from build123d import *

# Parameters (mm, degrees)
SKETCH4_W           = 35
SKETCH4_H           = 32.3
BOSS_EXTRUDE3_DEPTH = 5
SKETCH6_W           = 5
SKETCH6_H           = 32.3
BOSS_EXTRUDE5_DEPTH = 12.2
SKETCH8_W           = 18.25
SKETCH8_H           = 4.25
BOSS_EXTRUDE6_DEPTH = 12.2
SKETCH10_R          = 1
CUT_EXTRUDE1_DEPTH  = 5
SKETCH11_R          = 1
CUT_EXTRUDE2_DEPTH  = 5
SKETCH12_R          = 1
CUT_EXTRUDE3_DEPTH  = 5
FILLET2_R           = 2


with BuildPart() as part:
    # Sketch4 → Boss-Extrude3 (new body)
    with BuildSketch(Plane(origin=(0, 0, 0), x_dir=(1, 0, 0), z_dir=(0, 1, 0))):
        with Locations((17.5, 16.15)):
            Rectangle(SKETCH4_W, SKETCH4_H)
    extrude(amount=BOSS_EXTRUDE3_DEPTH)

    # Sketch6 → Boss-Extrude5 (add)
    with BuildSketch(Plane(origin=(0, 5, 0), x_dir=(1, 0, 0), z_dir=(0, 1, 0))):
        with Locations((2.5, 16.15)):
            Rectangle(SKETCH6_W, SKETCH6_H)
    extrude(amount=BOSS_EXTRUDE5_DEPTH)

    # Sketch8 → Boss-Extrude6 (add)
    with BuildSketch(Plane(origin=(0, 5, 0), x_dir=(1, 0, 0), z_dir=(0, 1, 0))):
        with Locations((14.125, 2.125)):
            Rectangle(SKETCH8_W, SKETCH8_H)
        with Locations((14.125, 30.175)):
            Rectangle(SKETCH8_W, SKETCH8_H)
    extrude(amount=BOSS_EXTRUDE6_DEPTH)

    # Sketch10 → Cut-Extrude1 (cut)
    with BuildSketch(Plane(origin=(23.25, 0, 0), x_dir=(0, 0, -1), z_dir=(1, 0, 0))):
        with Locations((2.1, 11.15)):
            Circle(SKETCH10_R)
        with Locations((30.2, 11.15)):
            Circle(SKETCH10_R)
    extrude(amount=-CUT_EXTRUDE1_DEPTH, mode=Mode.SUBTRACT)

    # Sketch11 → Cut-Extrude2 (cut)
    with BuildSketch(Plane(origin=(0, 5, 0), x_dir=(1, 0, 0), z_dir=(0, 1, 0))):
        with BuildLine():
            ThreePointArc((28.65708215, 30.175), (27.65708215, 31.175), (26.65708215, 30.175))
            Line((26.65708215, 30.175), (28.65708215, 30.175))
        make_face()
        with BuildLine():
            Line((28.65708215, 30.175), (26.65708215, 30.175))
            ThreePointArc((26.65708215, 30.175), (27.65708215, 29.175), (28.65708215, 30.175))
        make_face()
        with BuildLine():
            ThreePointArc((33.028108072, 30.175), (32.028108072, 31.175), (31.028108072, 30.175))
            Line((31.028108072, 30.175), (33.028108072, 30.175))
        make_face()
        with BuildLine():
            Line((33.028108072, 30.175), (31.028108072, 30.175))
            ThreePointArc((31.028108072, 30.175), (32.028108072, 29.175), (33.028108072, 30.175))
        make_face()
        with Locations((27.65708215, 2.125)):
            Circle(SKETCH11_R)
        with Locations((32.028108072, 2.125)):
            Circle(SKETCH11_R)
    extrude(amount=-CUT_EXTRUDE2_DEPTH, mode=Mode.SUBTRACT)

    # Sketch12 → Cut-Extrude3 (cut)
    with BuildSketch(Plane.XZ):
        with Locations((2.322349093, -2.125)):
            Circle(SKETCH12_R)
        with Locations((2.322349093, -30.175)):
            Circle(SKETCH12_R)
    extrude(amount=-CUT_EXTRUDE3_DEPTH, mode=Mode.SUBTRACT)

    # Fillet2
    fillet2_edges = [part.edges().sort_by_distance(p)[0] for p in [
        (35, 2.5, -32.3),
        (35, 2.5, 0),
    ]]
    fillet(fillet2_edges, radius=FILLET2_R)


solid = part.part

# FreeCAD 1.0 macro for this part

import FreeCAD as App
import Part
import Sketcher
Q = App.Units.Quantity


def edges_at(feature, points):
    """Names of the edges that pass closest to the given points."""
    edges = feature.Shape.Edges
    near = lambda p: min(range(len(edges)), key=lambda i: edges[i].distToShape(Part.Vertex(*p))[0])
    return sorted({f"Edge{near(p) + 1}" for p in points})


def add_polygon(sketch, points):
    """Adds a closed chain of lines whose ends are joined by coincident constraints."""
    first, n = sketch.GeometryCount, len(points)
    for a, b in zip(points, points[1:] + points[:1]):
        sketch.addGeometry(Part.LineSegment(App.Vector(*a, 0), App.Vector(*b, 0)), False)
    for i in range(n):
        sketch.addConstraint(Sketcher.Constraint("Coincident", first + i, 2, first + (i + 1) % n, 1))

doc = App.newDocument("Part")
body = doc.addObject("PartDesign::Body", "Body")

# Sketch on XZ plane
sketch1 = body.newObject("Sketcher::SketchObject", "Sketch")
sketch1.AttachmentSupport = (doc.getObject("XZ_Plane"), [""])
sketch1.MapMode = "FlatFace"
add_polygon(sketch1, [(0, -32), (0, 0), (35, 0), (35, -32)])  # lines 0-3
sketch1.addConstraint([
    Sketcher.Constraint("Vertical", 0),
    Sketcher.Constraint("Horizontal", 1),
    Sketcher.Constraint("Vertical", 2),
    Sketcher.Constraint("Horizontal", 3),
    Sketcher.Constraint("Coincident", 0, 2, -1, 1),
    Sketcher.Constraint("DistanceX", 1, 1, 1, 2, Q("35 mm")),
    Sketcher.Constraint("DistanceY", 0, 1, 0, 2, Q("32.3 mm")),
])
pad1 = body.newObject("PartDesign::Pad", "Pad")
pad1.Profile = sketch1
pad1.Length = 5
pad1.Reversed = True

# Sketch on XZ plane
sketch2 = body.newObject("Sketcher::SketchObject", "Sketch001")
sketch2.AttachmentSupport = (doc.getObject("XZ_Plane"), [""])
sketch2.MapMode = "FlatFace"
sketch2.AttachmentOffset = App.Placement(App.Vector(0, 0, -5), App.Rotation())
add_polygon(sketch2, [(0, -32), (0, 0), (5, 0), (5, -32)])  # lines 0-3
sketch2.addConstraint([
    Sketcher.Constraint("Vertical", 0),
    Sketcher.Constraint("Horizontal", 1),
    Sketcher.Constraint("Vertical", 2),
    Sketcher.Constraint("Horizontal", 3),
    Sketcher.Constraint("Coincident", 0, 2, -1, 1),
    Sketcher.Constraint("DistanceX", 1, 1, 1, 2, Q("5 mm")),
    Sketcher.Constraint("DistanceY", 0, 1, 0, 2, Q("32.3 mm")),
])
pad2 = body.newObject("PartDesign::Pad", "Pad001")
pad2.Profile = sketch2
pad2.Length = 12.2
pad2.Reversed = True

# Sketch on XZ plane
sketch3 = body.newObject("Sketcher::SketchObject", "Sketch002")
sketch3.AttachmentSupport = (doc.getObject("XZ_Plane"), [""])
sketch3.MapMode = "FlatFace"
sketch3.AttachmentOffset = App.Placement(App.Vector(0, 0, -5), App.Rotation())
add_polygon(sketch3, [(5, -4.2), (5, 0), (23.2, 0), (23.2, -4.2)])  # lines 0-3
add_polygon(sketch3, [(5, -32.3), (5, -28.1), (23.2, -28.1), (23.2, -32.3)])  # lines 4-7
sketch3.addConstraint([
    Sketcher.Constraint("Vertical", 0),
    Sketcher.Constraint("Horizontal", 1),
    Sketcher.Constraint("Vertical", 2),
    Sketcher.Constraint("Horizontal", 3),
    Sketcher.Constraint("Vertical", 4),
    Sketcher.Constraint("Horizontal", 5),
    Sketcher.Constraint("Vertical", 6),
    Sketcher.Constraint("Horizontal", 7),
    Sketcher.Constraint("PointOnObject", 0, 2, -1),
    Sketcher.Constraint("Vertical", 3, 2, 4, 2),
    Sketcher.Constraint("Vertical", 2, 2, 5, 2),
    Sketcher.Constraint("Equal", 2, 4),
    Sketcher.Constraint("DistanceX", -1, 1, 0, 2, Q("5 mm")),
    Sketcher.Constraint("DistanceX", 1, 1, 1, 2, Q("18.25 mm")),
    Sketcher.Constraint("DistanceY", 0, 1, 0, 2, Q("4.25 mm")),
    Sketcher.Constraint("DistanceY", 6, 2, -1, 1, Q("32.3 mm")),
])
pad3 = body.newObject("PartDesign::Pad", "Pad002")
pad3.Profile = sketch3
pad3.Length = 12.2
pad3.Reversed = True

# Sketch on YZ plane
sketch4 = body.newObject("Sketcher::SketchObject", "Sketch003")
sketch4.AttachmentSupport = (doc.getObject("YZ_Plane"), [""])
sketch4.MapMode = "FlatFace"
sketch4.AttachmentOffset = App.Placement(App.Vector(0, 0, 23.25), App.Rotation())
sketch4.addGeometry([
    Part.Circle(App.Vector(11.2, -2.1, 0), App.Vector(0, 0, 1), 1),
    Part.Circle(App.Vector(11.2, -30.2, 0), App.Vector(0, 0, 1), 1),
], False)
sketch4.addConstraint([
    Sketcher.Constraint("Equal", 0, 1),
    Sketcher.Constraint("Vertical", 0, 3, 1, 3),
    Sketcher.Constraint("Diameter", 0, Q("2 mm")),
    Sketcher.Constraint("DistanceY", 0, 3, -1, 1, Q("2.1 mm")),
    Sketcher.Constraint("DistanceY", 1, 3, -1, 1, Q("30.2 mm")),
    Sketcher.Constraint("DistanceX", -1, 1, 0, 3, Q("11.15 mm")),
])
pocket1 = body.newObject("PartDesign::Pocket", "Pocket")
pocket1.Profile = sketch4
pocket1.Length = 5

# Sketch on XZ plane
sketch5 = body.newObject("Sketcher::SketchObject", "Sketch004")
sketch5.AttachmentSupport = (doc.getObject("XZ_Plane"), [""])
sketch5.MapMode = "FlatFace"
sketch5.AttachmentOffset = App.Placement(App.Vector(0, 0, -5), App.Rotation())
sketch5.addGeometry([
    Part.Circle(App.Vector(27.7, -30.2, 0), App.Vector(0, 0, 1), 1),
    Part.Circle(App.Vector(32, -30.2, 0), App.Vector(0, 0, 1), 1),
    Part.Circle(App.Vector(27.7, -2.1, 0), App.Vector(0, 0, 1), 1),
    Part.Circle(App.Vector(32, -2.1, 0), App.Vector(0, 0, 1), 1),
], False)
sketch5.addConstraint([
    Sketcher.Constraint("Equal", 0, 1),
    Sketcher.Constraint("Equal", 1, 2),
    Sketcher.Constraint("Equal", 2, 3),
    Sketcher.Constraint("Horizontal", 0, 3, 1, 3),
    Sketcher.Constraint("Horizontal", 2, 3, 3, 3),
    Sketcher.Constraint("Vertical", 0, 3, 2, 3),
    Sketcher.Constraint("Vertical", 1, 3, 3, 3),
    Sketcher.Constraint("Diameter", 0, Q("2 mm")),
    Sketcher.Constraint("DistanceY", 0, 3, 2, 3, Q("28.05 mm")),
    Sketcher.Constraint("DistanceY", 0, 3, -1, 1, Q("30.175 mm")),
    Sketcher.Constraint("DistanceX", -1, 1, 1, 3, Q("32.028108 mm")),
    Sketcher.Constraint("DistanceX", -1, 1, 0, 3, Q("27.657082 mm")),
])
pocket2 = body.newObject("PartDesign::Pocket", "Pocket001")
pocket2.Profile = sketch5
pocket2.Length = 5
pocket2.Reversed = True

# Sketch on XZ plane
sketch6 = body.newObject("Sketcher::SketchObject", "Sketch005")
sketch6.AttachmentSupport = (doc.getObject("XZ_Plane"), [""])
sketch6.MapMode = "FlatFace"
sketch6.addGeometry([
    Part.Circle(App.Vector(2.3, -2.1, 0), App.Vector(0, 0, 1), 1),
    Part.Circle(App.Vector(2.3, -30.2, 0), App.Vector(0, 0, 1), 1),
], False)
sketch6.addConstraint([
    Sketcher.Constraint("Equal", 0, 1),
    Sketcher.Constraint("Vertical", 0, 3, 1, 3),
    Sketcher.Constraint("Diameter", 0, Q("2 mm")),
    Sketcher.Constraint("DistanceY", 1, 3, 0, 3, Q("28.05 mm")),
    Sketcher.Constraint("DistanceY", 0, 3, -1, 1, Q("2.125 mm")),
    Sketcher.Constraint("DistanceX", -1, 1, 0, 3, Q("2.322349 mm")),
])
pocket3 = body.newObject("PartDesign::Pocket", "Pocket002")
pocket3.Profile = sketch6
pocket3.Length = 5
doc.recompute()

fillet = body.newObject("PartDesign::Fillet", "Fillet")
fillet.Base = (pocket3, edges_at(pocket3, [(35, 2.5, -32.3), (35, 2.5, 0)]))
fillet.Radius = 2

doc.recompute()
